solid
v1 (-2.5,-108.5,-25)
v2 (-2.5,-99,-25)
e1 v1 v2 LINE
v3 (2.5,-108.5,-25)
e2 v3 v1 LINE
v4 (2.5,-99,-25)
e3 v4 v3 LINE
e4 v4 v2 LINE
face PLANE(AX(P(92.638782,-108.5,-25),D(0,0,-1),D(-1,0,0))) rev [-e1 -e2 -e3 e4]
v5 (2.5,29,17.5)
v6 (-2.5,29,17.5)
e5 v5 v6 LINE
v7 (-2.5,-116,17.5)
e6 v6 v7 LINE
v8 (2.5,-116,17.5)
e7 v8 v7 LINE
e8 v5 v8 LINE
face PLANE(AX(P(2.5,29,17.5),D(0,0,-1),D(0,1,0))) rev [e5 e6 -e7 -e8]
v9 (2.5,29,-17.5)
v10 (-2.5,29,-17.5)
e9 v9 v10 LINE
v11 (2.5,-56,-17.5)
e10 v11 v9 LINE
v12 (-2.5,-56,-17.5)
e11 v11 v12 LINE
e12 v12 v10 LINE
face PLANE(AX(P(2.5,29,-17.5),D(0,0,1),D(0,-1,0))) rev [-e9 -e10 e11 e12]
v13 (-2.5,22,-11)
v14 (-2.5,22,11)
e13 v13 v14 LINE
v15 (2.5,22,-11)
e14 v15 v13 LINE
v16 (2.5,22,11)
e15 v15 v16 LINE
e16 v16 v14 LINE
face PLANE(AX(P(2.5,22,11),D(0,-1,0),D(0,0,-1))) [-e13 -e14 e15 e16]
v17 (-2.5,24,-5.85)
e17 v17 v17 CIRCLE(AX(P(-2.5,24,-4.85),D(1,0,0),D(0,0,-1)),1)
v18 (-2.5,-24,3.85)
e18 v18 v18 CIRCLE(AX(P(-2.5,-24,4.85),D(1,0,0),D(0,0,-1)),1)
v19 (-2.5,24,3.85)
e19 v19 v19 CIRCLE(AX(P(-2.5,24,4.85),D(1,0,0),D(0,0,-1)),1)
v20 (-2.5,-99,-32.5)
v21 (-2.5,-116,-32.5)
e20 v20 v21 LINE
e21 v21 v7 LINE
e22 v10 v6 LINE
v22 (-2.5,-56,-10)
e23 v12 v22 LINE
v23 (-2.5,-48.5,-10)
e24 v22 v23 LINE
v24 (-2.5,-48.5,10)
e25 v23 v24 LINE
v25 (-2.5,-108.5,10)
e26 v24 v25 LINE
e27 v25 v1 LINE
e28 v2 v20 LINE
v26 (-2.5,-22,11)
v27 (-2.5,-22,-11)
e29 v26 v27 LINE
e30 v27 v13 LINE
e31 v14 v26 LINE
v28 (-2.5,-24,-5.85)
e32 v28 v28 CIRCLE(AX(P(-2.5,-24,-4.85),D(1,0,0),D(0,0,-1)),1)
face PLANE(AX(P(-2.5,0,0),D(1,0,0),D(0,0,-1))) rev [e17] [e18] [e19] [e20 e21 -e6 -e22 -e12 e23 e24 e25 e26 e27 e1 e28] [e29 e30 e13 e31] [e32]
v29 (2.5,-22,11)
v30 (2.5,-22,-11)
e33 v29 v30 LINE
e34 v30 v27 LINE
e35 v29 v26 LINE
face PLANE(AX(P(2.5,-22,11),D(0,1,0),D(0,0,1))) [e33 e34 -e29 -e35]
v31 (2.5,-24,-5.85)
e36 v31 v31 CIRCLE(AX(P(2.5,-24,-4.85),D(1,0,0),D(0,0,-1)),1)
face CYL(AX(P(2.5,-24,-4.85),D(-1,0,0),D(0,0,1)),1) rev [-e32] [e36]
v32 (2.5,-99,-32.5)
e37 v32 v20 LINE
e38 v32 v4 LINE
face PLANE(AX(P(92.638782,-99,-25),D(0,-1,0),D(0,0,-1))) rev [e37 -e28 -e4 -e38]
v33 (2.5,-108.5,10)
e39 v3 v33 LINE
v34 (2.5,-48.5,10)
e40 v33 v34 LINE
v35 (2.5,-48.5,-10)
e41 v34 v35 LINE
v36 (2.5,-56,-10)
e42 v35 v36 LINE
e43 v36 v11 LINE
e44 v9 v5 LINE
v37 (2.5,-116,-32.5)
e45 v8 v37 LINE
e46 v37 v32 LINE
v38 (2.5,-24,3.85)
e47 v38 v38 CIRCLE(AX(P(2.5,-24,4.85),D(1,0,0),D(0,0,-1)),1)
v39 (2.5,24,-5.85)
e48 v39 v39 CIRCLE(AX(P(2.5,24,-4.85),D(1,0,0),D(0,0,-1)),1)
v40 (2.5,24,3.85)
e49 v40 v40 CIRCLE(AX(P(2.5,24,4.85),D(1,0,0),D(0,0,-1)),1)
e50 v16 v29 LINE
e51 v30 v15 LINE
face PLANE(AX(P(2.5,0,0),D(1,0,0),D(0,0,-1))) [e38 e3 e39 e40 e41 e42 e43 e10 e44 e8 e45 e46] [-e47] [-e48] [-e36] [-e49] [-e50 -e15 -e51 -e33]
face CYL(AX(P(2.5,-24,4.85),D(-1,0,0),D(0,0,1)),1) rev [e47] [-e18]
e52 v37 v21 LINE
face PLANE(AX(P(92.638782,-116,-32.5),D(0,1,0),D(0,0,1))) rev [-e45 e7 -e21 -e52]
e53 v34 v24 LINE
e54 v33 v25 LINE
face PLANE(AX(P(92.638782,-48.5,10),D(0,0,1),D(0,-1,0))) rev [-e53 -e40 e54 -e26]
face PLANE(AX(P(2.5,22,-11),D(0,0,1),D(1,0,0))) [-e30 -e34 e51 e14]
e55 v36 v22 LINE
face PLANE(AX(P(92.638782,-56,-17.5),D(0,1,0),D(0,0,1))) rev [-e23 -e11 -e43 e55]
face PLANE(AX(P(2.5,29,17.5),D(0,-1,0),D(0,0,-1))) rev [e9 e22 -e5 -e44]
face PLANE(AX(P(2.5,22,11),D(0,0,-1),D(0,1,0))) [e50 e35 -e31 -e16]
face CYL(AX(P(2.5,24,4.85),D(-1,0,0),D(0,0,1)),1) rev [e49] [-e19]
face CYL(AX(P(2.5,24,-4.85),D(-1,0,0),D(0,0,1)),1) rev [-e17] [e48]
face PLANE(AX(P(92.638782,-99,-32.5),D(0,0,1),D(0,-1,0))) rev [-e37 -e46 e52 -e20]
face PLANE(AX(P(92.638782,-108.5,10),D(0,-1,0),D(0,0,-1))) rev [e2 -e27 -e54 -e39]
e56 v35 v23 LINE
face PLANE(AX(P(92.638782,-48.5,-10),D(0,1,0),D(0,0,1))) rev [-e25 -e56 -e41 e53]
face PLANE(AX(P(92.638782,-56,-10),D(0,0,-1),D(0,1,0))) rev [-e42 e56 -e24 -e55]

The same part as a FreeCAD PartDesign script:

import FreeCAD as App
import Part
import Sketcher
from FreeCAD import Vector
Q = App.Units.Quantity


def add_polygon(sketch, points):
    """Adds a closed chain of lines whose ends are joined by coincident constraints."""
    first, n = sketch.GeometryCount, len(points)
    for a, b in zip(points, points[1:] + points[:1]):
        sketch.addGeometry(Part.LineSegment(App.Vector(*a, 0), App.Vector(*b, 0)), False)
    for i in range(n):
        sketch.addConstraint(Sketcher.Constraint("Coincident", first + i, 2, first + (i + 1) % n, 1))

doc = App.newDocument("Part")
body = doc.addObject("PartDesign::Body", "Body")

# Sketch on YZ plane
sketch1 = doc.addObject("Sketcher::SketchObject", "Sketch")
body.addObject(sketch1)
sketch1.AttachmentSupport = (doc.YZ_Plane, [""])
sketch1.MapMode = "FlatFace"
add_polygon(sketch1, [(29, 17.5), (-41, 17.5), (-41, -17.5), (29, -17.5)])  # lines 0-3
sketch1.addGeometry(Part.Circle(Vector(-24, 4.8, 0), Vector(0, 0, 1), 1), False)  # 4
sketch1.addGeometry(Part.Circle(Vector(-24, -4.8, 0), Vector(0, 0, 1), 1), False)  # 5
sketch1.addGeometry(Part.Circle(Vector(24, 4.8, 0), Vector(0, 0, 1), 1), False)  # 6
add_polygon(sketch1, [(-22, -11), (-22, 11), (22, 11), (22, -11)])  # lines 7-10
sketch1.addGeometry(Part.Circle(Vector(24, -4.8, 0), Vector(0, 0, 1), 1), False)  # 11
sketch1.addConstraint([
    Sketcher.Constraint("Horizontal", 0),
    Sketcher.Constraint("Vertical", 1),
    Sketcher.Constraint("Horizontal", 2),
    Sketcher.Constraint("Vertical", 3),
    Sketcher.Constraint("Vertical", 7),
    Sketcher.Constraint("Horizontal", 8),
    Sketcher.Constraint("Vertical", 9),
    Sketcher.Constraint("Horizontal", 10),
    Sketcher.Constraint("Equal", 4, 5),
    Sketcher.Constraint("Equal", 5, 6),
    Sketcher.Constraint("Equal", 6, 11),
    Sketcher.Constraint("Symmetric", 5, 3, 6, 3, -1, 1),
    Sketcher.Constraint("Symmetric", 4, 3, 11, 3, -1, 1),
    Sketcher.Constraint("Symmetric", 7, 2, 9, 2, -1, 1),
    Sketcher.Constraint("Symmetric", 4, 3, 6, 3, -2),
    Sketcher.Constraint("Diameter", 4, Q("2 mm")),
    Sketcher.Constraint("DistanceX", 0, 2, 0, 1, Q("70 mm")),
    Sketcher.Constraint("DistanceX", 8, 1, 8, 2, Q("44 mm")),
    Sketcher.Constraint("DistanceY", 1, 2, 1, 1, Q("35 mm")),
    Sketcher.Constraint("DistanceY", 7, 1, 7, 2, Q("22 mm")),
    Sketcher.Constraint("DistanceX", 4, 3, -1, 1, Q("24 mm")),
    Sketcher.Constraint("DistanceX", 0, 2, -1, 1, Q("41 mm")),
    Sketcher.Constraint("DistanceY", -1, 1, 0, 2, Q("17.5 mm")),
    Sketcher.Constraint("DistanceY", 5, 3, 4, 3, Q("9.7 mm")),
])
pad1 = doc.addObject("PartDesign::Pad", "Pad")
body.addObject(pad1)
pad1.Profile = sketch1
pad1.Length = 5
pad1.Midplane = True

# Sketch on YZ plane
sketch2 = doc.addObject("Sketcher::SketchObject", "Sketch001")
body.addObject(sketch2)
sketch2.AttachmentSupport = (doc.YZ_Plane, [""])
sketch2.MapMode = "FlatFace"
sketch2.AttachmentOffset = App.Placement(Vector(0, 0, -2.5), App.Rotation())
add_polygon(sketch2, [(-56, -18), (-41, -18), (-41, 18), (-116, 18), (-116, -32), (-99, -32), (-99, -25), (-108, -25), (-108, 10), (-48, 10), (-48, -10), (-56, -10)])  # lines 0-11
sketch2.addConstraint([
    Sketcher.Constraint("Horizontal", 0),
    Sketcher.Constraint("Vertical", 1),
    Sketcher.Constraint("Horizontal", 2),
    Sketcher.Constraint("Vertical", 3),
    Sketcher.Constraint("Horizontal", 4),
    Sketcher.Constraint("Vertical", 5),
    Sketcher.Constraint("Horizontal", 6),
    Sketcher.Constraint("Vertical", 7),
    Sketcher.Constraint("Horizontal", 8),
    Sketcher.Constraint("Vertical", 9),
    Sketcher.Constraint("Horizontal", 10),
    Sketcher.Constraint("Vertical", 11),
    Sketcher.Constraint("Equal", 10, 5),
    Sketcher.Constraint("Equal", 1, 7),
    Sketcher.Constraint("Equal", 5, 11),
    Sketcher.Constraint("DistanceX", 0, 1, 0, 2, Q("15 mm")),
    Sketcher.Constraint("DistanceX", 2, 2, 2, 1, Q("75 mm")),
    Sketcher.Constraint("DistanceX", 4, 1, 4, 2, Q("17 mm")),
    Sketcher.Constraint("DistanceX", 8, 1, 8, 2, Q("60 mm")),
    Sketcher.Constraint("DistanceY", 1, 1, 1, 2, Q("35 mm")),
    Sketcher.Constraint("DistanceY", 3, 2, 3, 1, Q("50 mm")),
    Sketcher.Constraint("DistanceX", 6, 2, 6, 1, Q("9.5 mm")),
    Sketcher.Constraint("DistanceX", 0, 2, -1, 1, Q("41 mm")),
    Sketcher.Constraint("DistanceY", 5, 2, -1, 1, Q("25 mm")),
])
pad2 = doc.addObject("PartDesign::Pad", "Pad001")
body.addObject(pad2)
pad2.Profile = sketch2
pad2.Length = 5

doc.recompute()
